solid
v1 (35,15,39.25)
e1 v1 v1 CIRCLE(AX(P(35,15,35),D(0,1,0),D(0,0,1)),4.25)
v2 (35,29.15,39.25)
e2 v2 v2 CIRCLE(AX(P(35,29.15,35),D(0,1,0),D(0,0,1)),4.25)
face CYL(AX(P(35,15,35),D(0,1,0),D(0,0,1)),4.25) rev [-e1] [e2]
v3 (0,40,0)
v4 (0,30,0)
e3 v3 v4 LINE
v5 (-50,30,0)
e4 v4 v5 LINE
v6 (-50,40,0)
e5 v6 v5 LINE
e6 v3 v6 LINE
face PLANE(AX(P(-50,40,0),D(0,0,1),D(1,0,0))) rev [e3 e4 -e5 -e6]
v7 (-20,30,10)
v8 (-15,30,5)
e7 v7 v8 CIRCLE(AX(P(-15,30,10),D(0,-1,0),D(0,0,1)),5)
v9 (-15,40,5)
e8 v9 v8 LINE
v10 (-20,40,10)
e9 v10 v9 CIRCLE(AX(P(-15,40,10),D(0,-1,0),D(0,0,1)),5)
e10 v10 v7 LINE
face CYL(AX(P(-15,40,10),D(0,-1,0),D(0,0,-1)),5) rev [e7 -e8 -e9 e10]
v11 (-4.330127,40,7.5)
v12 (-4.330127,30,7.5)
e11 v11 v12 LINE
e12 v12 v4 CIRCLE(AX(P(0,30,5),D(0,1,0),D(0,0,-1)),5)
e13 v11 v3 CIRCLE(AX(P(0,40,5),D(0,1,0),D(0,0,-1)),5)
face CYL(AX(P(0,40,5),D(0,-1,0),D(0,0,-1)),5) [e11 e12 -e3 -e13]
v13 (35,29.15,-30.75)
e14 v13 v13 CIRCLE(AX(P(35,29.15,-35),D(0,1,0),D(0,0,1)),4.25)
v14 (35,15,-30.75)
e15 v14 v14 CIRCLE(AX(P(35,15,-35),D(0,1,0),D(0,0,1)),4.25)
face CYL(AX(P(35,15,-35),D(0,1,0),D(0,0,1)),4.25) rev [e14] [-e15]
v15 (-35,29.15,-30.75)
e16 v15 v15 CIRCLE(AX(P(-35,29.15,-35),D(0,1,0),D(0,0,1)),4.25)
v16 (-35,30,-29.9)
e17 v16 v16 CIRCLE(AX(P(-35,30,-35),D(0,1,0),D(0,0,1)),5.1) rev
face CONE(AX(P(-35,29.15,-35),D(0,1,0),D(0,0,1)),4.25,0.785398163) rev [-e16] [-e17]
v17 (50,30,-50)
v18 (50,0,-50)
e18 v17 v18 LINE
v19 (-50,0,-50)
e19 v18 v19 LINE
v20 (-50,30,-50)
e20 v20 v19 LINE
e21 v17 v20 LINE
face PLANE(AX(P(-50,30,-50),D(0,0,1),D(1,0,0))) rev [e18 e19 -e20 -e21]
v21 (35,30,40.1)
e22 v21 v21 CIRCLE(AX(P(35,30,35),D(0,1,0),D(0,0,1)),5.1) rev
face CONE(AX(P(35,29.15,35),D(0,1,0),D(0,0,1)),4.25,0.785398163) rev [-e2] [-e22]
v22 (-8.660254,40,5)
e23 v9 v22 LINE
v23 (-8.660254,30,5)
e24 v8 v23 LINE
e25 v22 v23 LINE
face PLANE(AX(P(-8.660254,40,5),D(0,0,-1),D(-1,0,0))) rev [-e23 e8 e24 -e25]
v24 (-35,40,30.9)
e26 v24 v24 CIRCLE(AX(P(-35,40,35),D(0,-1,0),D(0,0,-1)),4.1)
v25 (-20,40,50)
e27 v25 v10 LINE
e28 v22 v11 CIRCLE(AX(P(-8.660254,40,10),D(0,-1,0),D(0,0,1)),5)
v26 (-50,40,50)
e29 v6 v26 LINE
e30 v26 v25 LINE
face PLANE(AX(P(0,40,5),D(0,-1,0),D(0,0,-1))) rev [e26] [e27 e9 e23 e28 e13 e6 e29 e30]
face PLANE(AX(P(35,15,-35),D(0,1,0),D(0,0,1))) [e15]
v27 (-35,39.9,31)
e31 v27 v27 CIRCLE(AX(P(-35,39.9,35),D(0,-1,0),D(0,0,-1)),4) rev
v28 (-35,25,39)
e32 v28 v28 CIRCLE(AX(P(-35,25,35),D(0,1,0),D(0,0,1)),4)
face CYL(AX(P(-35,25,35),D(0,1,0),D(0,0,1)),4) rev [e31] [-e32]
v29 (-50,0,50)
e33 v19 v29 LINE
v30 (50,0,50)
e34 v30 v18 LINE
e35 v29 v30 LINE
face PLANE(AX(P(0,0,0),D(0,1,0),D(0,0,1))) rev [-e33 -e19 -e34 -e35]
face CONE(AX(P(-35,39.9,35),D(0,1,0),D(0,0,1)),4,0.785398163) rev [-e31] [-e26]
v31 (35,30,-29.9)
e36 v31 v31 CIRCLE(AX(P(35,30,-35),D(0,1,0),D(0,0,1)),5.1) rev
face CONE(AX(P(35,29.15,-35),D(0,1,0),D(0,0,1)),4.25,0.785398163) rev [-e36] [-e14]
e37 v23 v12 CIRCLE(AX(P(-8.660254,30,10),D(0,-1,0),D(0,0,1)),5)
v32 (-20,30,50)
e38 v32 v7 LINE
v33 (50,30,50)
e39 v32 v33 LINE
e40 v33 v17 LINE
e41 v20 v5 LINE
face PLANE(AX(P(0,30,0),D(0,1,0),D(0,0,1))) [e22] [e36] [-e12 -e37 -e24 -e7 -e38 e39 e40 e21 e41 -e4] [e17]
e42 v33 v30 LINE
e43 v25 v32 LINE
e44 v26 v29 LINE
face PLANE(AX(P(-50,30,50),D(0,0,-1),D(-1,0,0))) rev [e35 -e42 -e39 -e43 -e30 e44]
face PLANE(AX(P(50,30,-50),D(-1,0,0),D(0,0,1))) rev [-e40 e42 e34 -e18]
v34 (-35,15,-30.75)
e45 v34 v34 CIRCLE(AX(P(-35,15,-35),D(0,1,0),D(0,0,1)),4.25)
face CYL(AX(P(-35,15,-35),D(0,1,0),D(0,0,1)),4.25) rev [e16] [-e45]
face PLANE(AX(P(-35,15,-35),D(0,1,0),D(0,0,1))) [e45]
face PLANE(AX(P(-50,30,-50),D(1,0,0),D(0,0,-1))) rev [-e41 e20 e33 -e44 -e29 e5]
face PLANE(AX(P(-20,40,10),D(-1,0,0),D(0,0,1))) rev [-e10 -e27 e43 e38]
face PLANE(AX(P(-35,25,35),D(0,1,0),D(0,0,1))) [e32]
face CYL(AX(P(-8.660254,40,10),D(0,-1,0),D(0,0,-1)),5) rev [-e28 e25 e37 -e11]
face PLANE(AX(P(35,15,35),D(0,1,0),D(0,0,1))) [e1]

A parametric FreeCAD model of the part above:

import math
import FreeCAD as App
import Part
import Sketcher

V = App.Vector


def edges_at(feature, points):
    """Names of the edges that pass closest to the given points."""
    edges = feature.Shape.Edges
    near = lambda p: min(range(len(edges)), key=lambda i: edges[i].distToShape(Part.Vertex(*p))[0])
    return sorted({f"Edge{near(p) + 1}" for p in points})


def add_polygon(sketch, points):
    """Adds a closed chain of lines whose ends are joined by coincident constraints."""
    first, n = sketch.GeometryCount, len(points)
    for a, b in zip(points, points[1:] + points[:1]):
        sketch.addGeometry(Part.LineSegment(App.Vector(*a, 0), App.Vector(*b, 0)), False)
    for i in range(n):
        sketch.addConstraint(Sketcher.Constraint("Coincident", first + i, 2, first + (i + 1) % n, 1))

doc = App.newDocument("Part")
params = doc.addObject("Spreadsheet::Sheet", "Params")
for row, (alias, value) in enumerate([
    ("sketch1_width", "100 mm"),
    ("pad1_length", "30 mm"),
    ("sketch2_radius", "5 mm"),
    ("sketch2_width", "30 mm"),
    ("sketch2_width2", "50 mm"),
    ("pad2_length", "10 mm"),
    ("sketch3_diameter", "8.5 mm"),
    ("pocket1_length", "15 mm"),
    ("chamfer_size", "0.85 mm"),
    ("sketch4_diameter", "8 mm"),
    ("pocket2_length", "15 mm"),
    ("chamfer2_size", "0.1 mm"),
], start=1):
    params.set(f"A{row}", alias)
    params.set(f"B{row}", "=" + value)
    params.setAlias(f"B{row}", alias)

body = doc.addObject("PartDesign::Body", "Body")

sketch1 = doc.addObject("Sketcher::SketchObject", "Sketch")
body.addObject(sketch1)
sketch1.AttachmentSupport = (doc.XZ_Plane, [""])
sketch1.MapMode = "FlatFace"
add_polygon(sketch1, [(-50, -50), (-50, 50), (50, 50), (50, -50)])
sketch1.addConstraint([
    Sketcher.Constraint("Vertical", 0),
    Sketcher.Constraint("Horizontal", 1),
    Sketcher.Constraint("Vertical", 2),
    Sketcher.Constraint("Horizontal", 3),
    Sketcher.Constraint("Symmetric", 0, 2, 2, 2, -1, 1),
    Sketcher.Constraint("Equal", 3, 0),
    Sketcher.Constraint("DistanceX", 1, 1, 1, 2, 100.0),
])
sketch1.setExpression("Constraints[10]", "Params.sketch1_width")
pad1 = doc.addObject("PartDesign::Pad", "Pad")
body.addObject(pad1)
pad1.Profile = sketch1
pad1.setExpression("Length", "Params.pad1_length")
pad1.Reversed = True

sketch2 = doc.addObject("Sketcher::SketchObject", "Sketch001")
body.addObject(sketch2)
sketch2.AttachmentSupport = (doc.XZ_Plane, [""])
sketch2.MapMode = "FlatFace"
sketch2.AttachmentOffset = App.Placement(V(0, 0, -30), App.Rotation())
sketch2.addGeometry([
    Part.LineSegment(V(-50, 0, 0), V(-50, 50, 0)),
    Part.LineSegment(V(-50, 50, 0), V(-20, 50, 0)),
    Part.LineSegment(V(-20, 50, 0), V(-20, 10, 0)),
    Part.ArcOfCircle(Part.Circle(V(-15, 10, 0), V(0, 0, 1), 5), math.radians(180), math.radians(270)),
    Part.LineSegment(V(-15, 5, 0), V(-9, 5, 0)),
    Part.ArcOfCircle(Part.Circle(V(-9, 10, 0), V(0, 0, 1), 5), math.radians(-90), math.radians(-30)),
    Part.ArcOfCircle(Part.Circle(V(0, 5, 0), V(0, 0, 1), 5), math.radians(-90), math.radians(150)),
    Part.LineSegment(V(0, 0, 0), V(-50, 0, 0)),
], False)
sketch2.addConstraint([
    Sketcher.Constraint("Coincident", 0, 2, 1, 1),
    Sketcher.Constraint("Coincident", 1, 2, 2, 1),
    Sketcher.Constraint("Tangent", 2, 2, 3, 1),
    Sketcher.Constraint("Tangent", 3, 2, 4, 1),
    Sketcher.Constraint("Tangent", 4, 2, 5, 1),
    Sketcher.Constraint("Tangent", 5, 2, 6, 2),
    Sketcher.Constraint("Tangent", 6, 1, 7, 1),
    Sketcher.Constraint("Coincident", 7, 2, 0, 1),
    Sketcher.Constraint("Vertical", 0),
    Sketcher.Constraint("Horizontal", 1),
    Sketcher.Constraint("Vertical", 2),
    Sketcher.Constraint("Horizontal", 4),
    Sketcher.Constraint("Horizontal", 7),
    Sketcher.Constraint("Coincident", 6, 1, -1, 1),
    Sketcher.Constraint("Equal", 3, 5),
    Sketcher.Constraint("Equal", 5, 6),
    Sketcher.Constraint("Horizontal", 6, 3, 3, 2),
    Sketcher.Constraint("Equal", 7, 0),
    Sketcher.Constraint("Radius", 3, 5.0),
    Sketcher.Constraint("DistanceX", 1, 1, 1, 2, 30.0),
    Sketcher.Constraint("DistanceX", 7, 2, 7, 1, 50.0),
])
sketch2.setExpression("Constraints[18]", "Params.sketch2_radius")
sketch2.setExpression("Constraints[19]", "Params.sketch2_width")
sketch2.setExpression("Constraints[20]", "Params.sketch2_width2")
pad2 = doc.addObject("PartDesign::Pad", "Pad001")
body.addObject(pad2)
pad2.Profile = sketch2
pad2.setExpression("Length", "Params.pad2_length")
pad2.Reversed = True

sketch3 = doc.addObject("Sketcher::SketchObject", "Sketch002")
body.addObject(sketch3)
sketch3.AttachmentSupport = (doc.XZ_Plane, [""])
sketch3.MapMode = "FlatFace"
sketch3.AttachmentOffset = App.Placement(V(0, 0, -30), App.Rotation())
sketch3.addGeometry([
    Part.Circle(V(35, -35, 0), V(0, 0, 1), 4.2),
    Part.Circle(V(-35, -35, 0), V(0, 0, 1), 4.2),
    Part.Circle(V(35, 35, 0), V(0, 0, 1), 4.2),
], False)
sketch3.addConstraint([
    Sketcher.Constraint("Equal", 0, 1),
    Sketcher.Constraint("Equal", 1, 2),
    Sketcher.Constraint("Symmetric", 1, 3, 2, 3, -1, 1),
    Sketcher.Constraint("Symmetric", 0, 3, 1, 3, -2),
    Sketcher.Constraint("Diameter", 0, 8.5),
    Sketcher.Constraint("DistanceX", -1, 1, 0, 3, 35.0),
    Sketcher.Constraint("DistanceY", 0, 3, -1, 1, 35.0),
])
sketch3.setExpression("Constraints[4]", "Params.sketch3_diameter")
pocket1 = doc.addObject("PartDesign::Pocket", "Pocket")
body.addObject(pocket1)
pocket1.Profile = sketch3
pocket1.setExpression("Length", "Params.pocket1_length")
pocket1.Reversed = True
doc.recompute()

chamfer = doc.addObject("PartDesign::Chamfer", "Chamfer")
body.addObject(chamfer)
chamfer.Base = (pocket1, edges_at(pocket1, [(35, 30, 30.75), (-35, 30, -39.25), (35, 30, -39.25)]))
chamfer.setExpression("Size", "Params.chamfer_size")

sketch4 = doc.addObject("Sketcher::SketchObject", "Sketch003")
body.addObject(sketch4)
sketch4.AttachmentSupport = (doc.XZ_Plane, [""])
sketch4.MapMode = "FlatFace"
sketch4.AttachmentOffset = App.Placement(V(0, 0, -40), App.Rotation())
sketch4.addGeometry(Part.Circle(V(-35, 35, 0), V(0, 0, 1), 4), False)
sketch4.addConstraint([
    Sketcher.Constraint("Diameter", 0, 8.0),
    Sketcher.Constraint("DistanceX", 0, 3, -1, 1, 35.0),
    Sketcher.Constraint("DistanceY", -1, 1, 0, 3, 35.0),
])
sketch4.setExpression("Constraints[0]", "Params.sketch4_diameter")
pocket2 = doc.addObject("PartDesign::Pocket", "Pocket001")
body.addObject(pocket2)
pocket2.Profile = sketch4
pocket2.setExpression("Length", "Params.pocket2_length")
pocket2.Reversed = True
doc.recompute()

chamfer2 = doc.addObject("PartDesign::Chamfer", "Chamfer001")
body.addObject(chamfer2)
chamfer2.Base = (pocket2, edges_at(pocket2, [(-35, 40, 31)]))
chamfer2.setExpression("Size", "Params.chamfer2_size")

doc.recompute()
